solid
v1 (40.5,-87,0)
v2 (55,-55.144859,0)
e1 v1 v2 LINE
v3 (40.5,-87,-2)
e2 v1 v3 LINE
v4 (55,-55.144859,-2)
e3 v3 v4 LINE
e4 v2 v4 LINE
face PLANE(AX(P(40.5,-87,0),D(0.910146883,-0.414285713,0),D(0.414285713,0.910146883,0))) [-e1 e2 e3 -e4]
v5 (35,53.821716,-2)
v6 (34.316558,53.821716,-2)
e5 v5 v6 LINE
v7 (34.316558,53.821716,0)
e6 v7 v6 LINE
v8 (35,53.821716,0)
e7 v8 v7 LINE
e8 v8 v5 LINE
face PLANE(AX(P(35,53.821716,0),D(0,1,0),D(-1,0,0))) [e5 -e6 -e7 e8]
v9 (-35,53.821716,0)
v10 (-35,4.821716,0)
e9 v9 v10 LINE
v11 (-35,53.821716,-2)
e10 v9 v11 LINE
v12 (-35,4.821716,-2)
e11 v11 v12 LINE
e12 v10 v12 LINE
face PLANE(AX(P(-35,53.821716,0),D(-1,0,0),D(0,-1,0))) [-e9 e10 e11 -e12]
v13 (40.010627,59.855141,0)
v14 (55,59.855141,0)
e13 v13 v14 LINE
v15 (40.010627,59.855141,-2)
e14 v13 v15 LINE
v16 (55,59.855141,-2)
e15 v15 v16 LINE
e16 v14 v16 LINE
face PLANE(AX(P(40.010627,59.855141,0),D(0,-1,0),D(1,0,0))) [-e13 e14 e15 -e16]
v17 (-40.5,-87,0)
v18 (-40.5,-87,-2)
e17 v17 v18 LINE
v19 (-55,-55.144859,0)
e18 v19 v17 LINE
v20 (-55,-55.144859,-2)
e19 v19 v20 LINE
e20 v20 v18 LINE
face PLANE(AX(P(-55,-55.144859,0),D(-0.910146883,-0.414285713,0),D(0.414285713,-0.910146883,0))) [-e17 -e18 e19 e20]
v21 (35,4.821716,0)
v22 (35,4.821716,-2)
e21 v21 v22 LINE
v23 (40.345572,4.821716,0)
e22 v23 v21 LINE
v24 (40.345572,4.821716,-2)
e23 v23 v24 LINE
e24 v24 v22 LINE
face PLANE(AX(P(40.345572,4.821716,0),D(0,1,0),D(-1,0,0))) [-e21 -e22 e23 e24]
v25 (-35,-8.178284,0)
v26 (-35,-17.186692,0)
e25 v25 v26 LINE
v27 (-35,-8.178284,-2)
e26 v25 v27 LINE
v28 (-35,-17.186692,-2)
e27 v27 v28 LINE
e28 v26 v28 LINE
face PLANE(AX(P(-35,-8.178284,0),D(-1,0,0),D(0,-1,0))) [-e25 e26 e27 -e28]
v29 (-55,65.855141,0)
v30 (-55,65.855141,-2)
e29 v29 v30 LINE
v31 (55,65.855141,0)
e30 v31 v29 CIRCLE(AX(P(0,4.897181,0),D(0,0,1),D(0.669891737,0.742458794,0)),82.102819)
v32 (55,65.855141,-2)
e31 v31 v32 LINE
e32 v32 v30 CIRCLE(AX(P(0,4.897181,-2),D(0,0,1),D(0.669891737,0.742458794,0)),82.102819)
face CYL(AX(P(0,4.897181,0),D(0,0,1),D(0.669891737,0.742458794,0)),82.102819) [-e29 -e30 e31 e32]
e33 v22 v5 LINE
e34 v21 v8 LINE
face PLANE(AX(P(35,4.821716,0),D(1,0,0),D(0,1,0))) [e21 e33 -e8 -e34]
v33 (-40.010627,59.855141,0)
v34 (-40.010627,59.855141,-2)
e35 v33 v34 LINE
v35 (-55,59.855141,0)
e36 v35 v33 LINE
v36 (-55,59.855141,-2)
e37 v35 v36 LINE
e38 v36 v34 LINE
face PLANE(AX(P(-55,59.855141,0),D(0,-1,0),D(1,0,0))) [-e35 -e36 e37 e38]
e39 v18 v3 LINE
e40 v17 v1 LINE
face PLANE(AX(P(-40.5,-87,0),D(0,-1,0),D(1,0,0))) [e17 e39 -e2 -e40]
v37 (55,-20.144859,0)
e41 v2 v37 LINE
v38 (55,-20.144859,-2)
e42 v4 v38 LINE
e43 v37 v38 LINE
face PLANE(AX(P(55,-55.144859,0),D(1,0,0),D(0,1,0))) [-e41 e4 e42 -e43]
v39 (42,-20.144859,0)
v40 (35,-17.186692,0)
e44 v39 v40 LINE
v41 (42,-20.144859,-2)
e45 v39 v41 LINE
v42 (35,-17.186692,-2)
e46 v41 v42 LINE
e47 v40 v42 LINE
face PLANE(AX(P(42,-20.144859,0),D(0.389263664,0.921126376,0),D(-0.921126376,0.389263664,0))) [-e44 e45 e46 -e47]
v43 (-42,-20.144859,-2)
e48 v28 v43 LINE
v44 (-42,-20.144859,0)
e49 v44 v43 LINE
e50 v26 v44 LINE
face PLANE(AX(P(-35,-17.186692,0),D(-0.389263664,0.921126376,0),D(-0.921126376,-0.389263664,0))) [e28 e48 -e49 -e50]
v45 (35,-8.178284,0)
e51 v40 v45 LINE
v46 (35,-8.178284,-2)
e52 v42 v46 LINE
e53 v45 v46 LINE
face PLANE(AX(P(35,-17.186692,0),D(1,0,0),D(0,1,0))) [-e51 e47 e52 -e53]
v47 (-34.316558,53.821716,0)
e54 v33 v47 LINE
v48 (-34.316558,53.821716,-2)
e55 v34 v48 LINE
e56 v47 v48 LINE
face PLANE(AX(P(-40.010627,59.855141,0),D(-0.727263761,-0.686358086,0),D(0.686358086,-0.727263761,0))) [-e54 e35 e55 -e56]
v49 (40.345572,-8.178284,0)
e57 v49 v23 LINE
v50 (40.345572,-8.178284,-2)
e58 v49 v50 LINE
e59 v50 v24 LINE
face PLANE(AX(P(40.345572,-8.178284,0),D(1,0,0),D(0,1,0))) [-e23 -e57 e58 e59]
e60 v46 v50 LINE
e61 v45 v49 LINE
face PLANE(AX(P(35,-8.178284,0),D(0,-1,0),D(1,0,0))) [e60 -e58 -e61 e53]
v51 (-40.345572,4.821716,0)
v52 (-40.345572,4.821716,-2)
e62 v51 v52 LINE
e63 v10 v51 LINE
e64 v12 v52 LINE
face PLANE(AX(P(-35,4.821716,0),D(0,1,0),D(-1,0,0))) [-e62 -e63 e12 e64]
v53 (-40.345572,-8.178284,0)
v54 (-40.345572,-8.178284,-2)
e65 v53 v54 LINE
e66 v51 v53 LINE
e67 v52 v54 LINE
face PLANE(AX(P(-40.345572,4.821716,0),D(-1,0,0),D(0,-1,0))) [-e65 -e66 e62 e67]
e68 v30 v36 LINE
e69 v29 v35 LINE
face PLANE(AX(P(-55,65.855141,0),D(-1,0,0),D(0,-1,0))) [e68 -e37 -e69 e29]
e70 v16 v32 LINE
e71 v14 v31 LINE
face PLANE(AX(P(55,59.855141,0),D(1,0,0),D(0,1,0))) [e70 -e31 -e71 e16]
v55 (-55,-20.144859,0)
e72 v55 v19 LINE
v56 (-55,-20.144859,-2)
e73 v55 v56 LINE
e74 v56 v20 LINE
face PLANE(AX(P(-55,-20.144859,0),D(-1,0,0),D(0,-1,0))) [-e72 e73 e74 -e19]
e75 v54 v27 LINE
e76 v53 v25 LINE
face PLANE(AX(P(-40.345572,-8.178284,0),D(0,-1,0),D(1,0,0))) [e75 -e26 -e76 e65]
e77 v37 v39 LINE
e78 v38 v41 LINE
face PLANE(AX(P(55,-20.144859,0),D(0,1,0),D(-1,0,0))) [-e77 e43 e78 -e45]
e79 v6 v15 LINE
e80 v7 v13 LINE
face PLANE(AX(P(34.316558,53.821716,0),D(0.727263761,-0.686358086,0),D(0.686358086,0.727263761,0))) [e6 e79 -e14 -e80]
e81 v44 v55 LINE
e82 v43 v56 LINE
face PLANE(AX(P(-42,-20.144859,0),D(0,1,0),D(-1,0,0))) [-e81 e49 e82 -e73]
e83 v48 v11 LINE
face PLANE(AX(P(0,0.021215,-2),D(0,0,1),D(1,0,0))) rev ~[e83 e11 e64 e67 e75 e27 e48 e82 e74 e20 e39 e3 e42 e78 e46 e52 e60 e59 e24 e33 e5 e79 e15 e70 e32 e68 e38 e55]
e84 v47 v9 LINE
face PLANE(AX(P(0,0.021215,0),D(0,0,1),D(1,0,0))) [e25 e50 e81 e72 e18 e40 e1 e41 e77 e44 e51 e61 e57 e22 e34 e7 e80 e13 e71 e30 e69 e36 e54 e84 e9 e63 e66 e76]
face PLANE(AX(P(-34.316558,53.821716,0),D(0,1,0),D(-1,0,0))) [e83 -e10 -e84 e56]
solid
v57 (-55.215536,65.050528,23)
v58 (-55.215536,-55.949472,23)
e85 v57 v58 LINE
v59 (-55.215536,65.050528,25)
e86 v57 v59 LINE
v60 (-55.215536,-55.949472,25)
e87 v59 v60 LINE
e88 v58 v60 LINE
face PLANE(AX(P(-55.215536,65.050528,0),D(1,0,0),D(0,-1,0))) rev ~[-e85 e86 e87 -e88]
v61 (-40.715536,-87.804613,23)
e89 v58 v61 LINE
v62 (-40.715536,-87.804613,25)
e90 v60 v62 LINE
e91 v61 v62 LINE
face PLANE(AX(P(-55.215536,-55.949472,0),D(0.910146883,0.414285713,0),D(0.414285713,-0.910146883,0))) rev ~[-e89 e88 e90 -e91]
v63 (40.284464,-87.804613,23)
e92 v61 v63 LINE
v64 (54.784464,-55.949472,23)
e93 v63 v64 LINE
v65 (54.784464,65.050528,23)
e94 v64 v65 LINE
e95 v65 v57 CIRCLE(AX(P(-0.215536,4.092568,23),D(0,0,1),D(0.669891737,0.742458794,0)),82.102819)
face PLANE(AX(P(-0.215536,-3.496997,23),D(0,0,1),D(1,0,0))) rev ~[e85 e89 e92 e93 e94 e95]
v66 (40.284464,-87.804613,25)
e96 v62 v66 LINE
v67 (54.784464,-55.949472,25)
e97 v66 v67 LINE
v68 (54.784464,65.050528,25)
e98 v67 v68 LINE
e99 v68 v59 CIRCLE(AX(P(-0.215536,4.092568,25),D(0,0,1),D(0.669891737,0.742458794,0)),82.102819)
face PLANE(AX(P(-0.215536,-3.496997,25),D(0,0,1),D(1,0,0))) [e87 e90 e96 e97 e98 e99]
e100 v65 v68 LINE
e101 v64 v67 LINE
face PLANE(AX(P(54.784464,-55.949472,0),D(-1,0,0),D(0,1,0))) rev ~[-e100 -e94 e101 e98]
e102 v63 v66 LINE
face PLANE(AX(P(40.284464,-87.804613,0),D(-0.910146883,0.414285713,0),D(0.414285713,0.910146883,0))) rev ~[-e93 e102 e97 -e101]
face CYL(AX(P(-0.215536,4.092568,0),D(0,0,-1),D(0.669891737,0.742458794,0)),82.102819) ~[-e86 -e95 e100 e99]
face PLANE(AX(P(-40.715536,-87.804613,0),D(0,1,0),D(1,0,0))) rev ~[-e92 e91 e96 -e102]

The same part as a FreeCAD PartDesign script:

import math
import FreeCAD as App
import Part
import Sketcher
from FreeCAD import Vector

doc = App.newDocument("Part")
body = doc.addObject("PartDesign::Body", "Body")

# Sketch on XY plane
sketch1 = body.newObject("Sketcher::SketchObject", "Sketch")
sketch1.AttachmentSupport = (doc.getObject("XY_Plane"), [""])
sketch1.MapMode = "FlatFace"
sketch1.addGeometry(Part.LineSegment(Vector(-41, -88, 0), Vector(40, -88, 0)), False)
sketch1.addGeometry(Part.LineSegment(Vector(40, -88, 0), Vector(55, -56, 0)), False)
sketch1.addGeometry(Part.LineSegment(Vector(55, -56, 0), Vector(55, 65, 0)), False)
sketch1.addGeometry(Part.ArcOfCircle(Part.Circle(Vector(0, 4, 0), Vector(0, 0, 1), 82), math.radians(48), math.radians(132)), False)
sketch1.addGeometry(Part.LineSegment(Vector(-55, 65, 0), Vector(-55, -56, 0)), False)
sketch1.addGeometry(Part.LineSegment(Vector(-55, -56, 0), Vector(-41, -88, 0)), False)
sketch1.addConstraint(Sketcher.Constraint("Coincident", 0, 2, 1, 1))
sketch1.addConstraint(Sketcher.Constraint("Coincident", 1, 2, 2, 1))
sketch1.addConstraint(Sketcher.Constraint("Coincident", 2, 2, 3, 1))
sketch1.addConstraint(Sketcher.Constraint("Coincident", 3, 2, 4, 1))
sketch1.addConstraint(Sketcher.Constraint("Coincident", 4, 2, 5, 1))
sketch1.addConstraint(Sketcher.Constraint("Coincident", 5, 2, 0, 1))
sketch1.addConstraint(Sketcher.Constraint("Horizontal", 0))
sketch1.addConstraint(Sketcher.Constraint("Vertical", 2))
sketch1.addConstraint(Sketcher.Constraint("Vertical", 4))
sketch1.addConstraint(Sketcher.Constraint("Horizontal", 2, 2, 3, 2))
sketch1.addConstraint(Sketcher.Constraint("Horizontal", 1, 2, 4, 2))
sketch1.addConstraint(Sketcher.Constraint("Equal", 1, 5))
sketch1.addConstraint(Sketcher.Constraint("DistanceX", 0, 1, 0, 2, 81.0))
sketch1.addConstraint(Sketcher.Constraint("DistanceY", 2, 1, 2, 2, 121.0))
sketch1.addConstraint(Sketcher.Constraint("Distance", 1, 35.0))
sketch1.addConstraint(Sketcher.Constraint("DistanceX", 3, 3, 1, 2, 55.0))
sketch1.addConstraint(Sketcher.Constraint("Radius", 3, 82.102819))
sketch1.addConstraint(Sketcher.Constraint("DistanceY", -1, 1, 3, 3, 4.092568))
sketch1.addConstraint(Sketcher.Constraint("DistanceX", 3, 3, -1, 1, 0.215536))
pad1 = body.newObject("PartDesign::Pad", "Pad")
pad1.Profile = sketch1
pad1.Length = 25

# Sketch on XY plane
sketch2 = body.newObject("Sketcher::SketchObject", "Sketch001")
sketch2.AttachmentSupport = (doc.getObject("XY_Plane"), [""])
sketch2.MapMode = "FlatFace"
sketch2.addGeometry(Part.LineSegment(Vector(-41, -88, 0), Vector(40, -88, 0)), False)
sketch2.addGeometry(Part.LineSegment(Vector(40, -88, 0), Vector(55, -56, 0)), False)
sketch2.addGeometry(Part.LineSegment(Vector(55, -56, 0), Vector(55, 65, 0)), False)
sketch2.addGeometry(Part.ArcOfCircle(Part.Circle(Vector(0, 4, 0), Vector(0, 0, 1), 82), math.radians(48), math.radians(132)), False)
sketch2.addGeometry(Part.LineSegment(Vector(-55, 65, 0), Vector(-55, -56, 0)), False)
sketch2.addGeometry(Part.LineSegment(Vector(-55, -56, 0), Vector(-41, -88, 0)), False)
sketch2.addConstraint(Sketcher.Constraint("Coincident", 0, 2, 1, 1))
sketch2.addConstraint(Sketcher.Constraint("Coincident", 1, 2, 2, 1))
sketch2.addConstraint(Sketcher.Constraint("Coincident", 2, 2, 3, 1))
sketch2.addConstraint(Sketcher.Constraint("Coincident", 3, 2, 4, 1))
sketch2.addConstraint(Sketcher.Constraint("Coincident", 4, 2, 5, 1))
sketch2.addConstraint(Sketcher.Constraint("Coincident", 5, 2, 0, 1))
sketch2.addConstraint(Sketcher.Constraint("Horizontal", 0))
sketch2.addConstraint(Sketcher.Constraint("Vertical", 2))
sketch2.addConstraint(Sketcher.Constraint("Vertical", 4))
sketch2.addConstraint(Sketcher.Constraint("Horizontal", 2, 2, 3, 2))
sketch2.addConstraint(Sketcher.Constraint("Horizontal", 1, 2, 4, 2))
sketch2.addConstraint(Sketcher.Constraint("Equal", 1, 5))
sketch2.addConstraint(Sketcher.Constraint("DistanceX", 0, 1, 0, 2, 81.0))
sketch2.addConstraint(Sketcher.Constraint("DistanceY", 2, 1, 2, 2, 121.0))
sketch2.addConstraint(Sketcher.Constraint("Distance", 1, 35.0))
sketch2.addConstraint(Sketcher.Constraint("DistanceX", 3, 3, 1, 2, 55.0))
sketch2.addConstraint(Sketcher.Constraint("Radius", 3, 82.102819))
sketch2.addConstraint(Sketcher.Constraint("DistanceY", -1, 1, 3, 3, 4.092568))
sketch2.addConstraint(Sketcher.Constraint("DistanceX", 3, 3, -1, 1, 0.215536))
pocket1 = body.newObject("PartDesign::Pocket", "Pocket")
pocket1.Profile = sketch2
pocket1.Length = 23
pocket1.Reversed = True
body2 = doc.addObject("PartDesign::Body", "Body001")

# Sketch on XY plane
sketch3 = body2.newObject("Sketcher::SketchObject", "Sketch002")
sketch3.AttachmentSupport = (doc.getObject("XY_Plane001"), [""])
sketch3.MapMode = "FlatFace"
sketch3.addGeometry(Part.LineSegment(Vector(-40.5, -87, 0), Vector(40.5, -87, 0)), False)
sketch3.addGeometry(Part.LineSegment(Vector(40.5, -87, 0), Vector(55, -55.1, 0)), False)
sketch3.addGeometry(Part.LineSegment(Vector(55, -55.1, 0), Vector(55, -20.1, 0)), False)
sketch3.addGeometry(Part.LineSegment(Vector(55, -20.1, 0), Vector(42, -20.1, 0)), False)
sketch3.addGeometry(Part.LineSegment(Vector(42, -20.1, 0), Vector(35, -17.2, 0)), False)
sketch3.addGeometry(Part.LineSegment(Vector(35, -17.2, 0), Vector(35, -8.2, 0)), False)
sketch3.addGeometry(Part.LineSegment(Vector(35, -8.2, 0), Vector(40.3, -8.2, 0)), False)
sketch3.addGeometry(Part.LineSegment(Vector(40.3, -8.2, 0), Vector(40.3, 4.8, 0)), False)
sketch3.addGeometry(Part.LineSegment(Vector(40.3, 4.8, 0), Vector(35, 4.8, 0)), False)
sketch3.addGeometry(Part.LineSegment(Vector(35, 4.8, 0), Vector(35, 53.8, 0)), False)
sketch3.addGeometry(Part.LineSegment(Vector(35, 53.8, 0), Vector(34.3, 53.8, 0)), False)
sketch3.addGeometry(Part.LineSegment(Vector(34.3, 53.8, 0), Vector(40, 59.9, 0)), False)
sketch3.addGeometry(Part.LineSegment(Vector(40, 59.9, 0), Vector(55, 59.9, 0)), False)
sketch3.addGeometry(Part.LineSegment(Vector(55, 59.9, 0), Vector(55, 65.9, 0)), False)
sketch3.addGeometry(Part.ArcOfCircle(Part.Circle(Vector(0, 4.9, 0), Vector(0, 0, 1), 82.1), math.radians(48), math.radians(132)), False)
sketch3.addGeometry(Part.LineSegment(Vector(-55, 65.9, 0), Vector(-55, 59.9, 0)), False)
sketch3.addGeometry(Part.LineSegment(Vector(-55, 59.9, 0), Vector(-40, 59.9, 0)), False)
sketch3.addGeometry(Part.LineSegment(Vector(-40, 59.9, 0), Vector(-34.3, 53.8, 0)), False)
sketch3.addGeometry(Part.LineSegment(Vector(-34.3, 53.8, 0), Vector(-35, 53.8, 0)), False)
sketch3.addGeometry(Part.LineSegment(Vector(-35, 53.8, 0), Vector(-35, 4.8, 0)), False)
sketch3.addGeometry(Part.LineSegment(Vector(-35, 4.8, 0), Vector(-40.3, 4.8, 0)), False)
sketch3.addGeometry(Part.LineSegment(Vector(-40.3, 4.8, 0), Vector(-40.3, -8.2, 0)), False)
sketch3.addGeometry(Part.LineSegment(Vector(-40.3, -8.2, 0), Vector(-35, -8.2, 0)), False)
sketch3.addGeometry(Part.LineSegment(Vector(-35, -8.2, 0), Vector(-35, -17.2, 0)), False)
sketch3.addGeometry(Part.LineSegment(Vector(-35, -17.2, 0), Vector(-42, -20.1, 0)), False)
sketch3.addGeometry(Part.LineSegment(Vector(-42, -20.1, 0), Vector(-55, -20.1, 0)), False)
sketch3.addGeometry(Part.LineSegment(Vector(-55, -20.1, 0), Vector(-55, -55.1, 0)), False)
sketch3.addGeometry(Part.LineSegment(Vector(-55, -55.1, 0), Vector(-40.5, -87, 0)), False)
sketch3.addConstraint(Sketcher.Constraint("Coincident", 0, 2, 1, 1))
sketch3.addConstraint(Sketcher.Constraint("Coincident", 1, 2, 2, 1))
sketch3.addConstraint(Sketcher.Constraint("Coincident", 2, 2, 3, 1))
sketch3.addConstraint(Sketcher.Constraint("Coincident", 3, 2, 4, 1))
sketch3.addConstraint(Sketcher.Constraint("Coincident", 4, 2, 5, 1))
sketch3.addConstraint(Sketcher.Constraint("Coincident", 5, 2, 6, 1))
sketch3.addConstraint(Sketcher.Constraint("Coincident", 6, 2, 7, 1))
sketch3.addConstraint(Sketcher.Constraint("Coincident", 7, 2, 8, 1))
sketch3.addConstraint(Sketcher.Constraint("Coincident", 8, 2, 9, 1))
sketch3.addConstraint(Sketcher.Constraint("Coincident", 9, 2, 10, 1))
sketch3.addConstraint(Sketcher.Constraint("Coincident", 10, 2, 11, 1))
sketch3.addConstraint(Sketcher.Constraint("Coincident", 11, 2, 12, 1))
sketch3.addConstraint(Sketcher.Constraint("Coincident", 12, 2, 13, 1))
sketch3.addConstraint(Sketcher.Constraint("Coincident", 13, 2, 14, 1))
sketch3.addConstraint(Sketcher.Constraint("Coincident", 14, 2, 15, 1))
sketch3.addConstraint(Sketcher.Constraint("Coincident", 15, 2, 16, 1))
sketch3.addConstraint(Sketcher.Constraint("Coincident", 16, 2, 17, 1))
sketch3.addConstraint(Sketcher.Constraint("Coincident", 17, 2, 18, 1))
sketch3.addConstraint(Sketcher.Constraint("Coincident", 18, 2, 19, 1))
sketch3.addConstraint(Sketcher.Constraint("Coincident", 19, 2, 20, 1))
sketch3.addConstraint(Sketcher.Constraint("Coincident", 20, 2, 21, 1))
sketch3.addConstraint(Sketcher.Constraint("Coincident", 21, 2, 22, 1))
sketch3.addConstraint(Sketcher.Constraint("Coincident", 22, 2, 23, 1))
sketch3.addConstraint(Sketcher.Constraint("Coincident", 23, 2, 24, 1))
sketch3.addConstraint(Sketcher.Constraint("Coincident", 24, 2, 25, 1))
sketch3.addConstraint(Sketcher.Constraint("Coincident", 25, 2, 26, 1))
sketch3.addConstraint(Sketcher.Constraint("Coincident", 26, 2, 27, 1))
sketch3.addConstraint(Sketcher.Constraint("Coincident", 27, 2, 0, 1))
sketch3.addConstraint(Sketcher.Constraint("Horizontal", 0))
sketch3.addConstraint(Sketcher.Constraint("Vertical", 2))
sketch3.addConstraint(Sketcher.Constraint("Horizontal", 3))
sketch3.addConstraint(Sketcher.Constraint("Vertical", 5))
sketch3.addConstraint(Sketcher.Constraint("Horizontal", 6))
sketch3.addConstraint(Sketcher.Constraint("Vertical", 7))
sketch3.addConstraint(Sketcher.Constraint("Horizontal", 8))
sketch3.addConstraint(Sketcher.Constraint("Vertical", 9))
sketch3.addConstraint(Sketcher.Constraint("Horizontal", 10))
sketch3.addConstraint(Sketcher.Constraint("Horizontal", 12))
sketch3.addConstraint(Sketcher.Constraint("Vertical", 13))
sketch3.addConstraint(Sketcher.Constraint("Vertical", 15))
sketch3.addConstraint(Sketcher.Constraint("Horizontal", 16))
sketch3.addConstraint(Sketcher.Constraint("Horizontal", 18))
sketch3.addConstraint(Sketcher.Constraint("Vertical", 19))
sketch3.addConstraint(Sketcher.Constraint("Horizontal", 20))
sketch3.addConstraint(Sketcher.Constraint("Vertical", 21))
sketch3.addConstraint(Sketcher.Constraint("Horizontal", 22))
sketch3.addConstraint(Sketcher.Constraint("Vertical", 23))
sketch3.addConstraint(Sketcher.Constraint("Horizontal", 25))
sketch3.addConstraint(Sketcher.Constraint("Vertical", 26))
sketch3.addConstraint(Sketcher.Constraint("Symmetric", 13, 2, 14, 2, -2))
sketch3.addConstraint(Sketcher.Constraint("Symmetric", 11, 2, 16, 2, -2))
sketch3.addConstraint(Sketcher.Constraint("Symmetric", 10, 2, 17, 2, -2))
sketch3.addConstraint(Sketcher.Constraint("Symmetric", 8, 2, 19, 2, -2))
sketch3.addConstraint(Sketcher.Constraint("Symmetric", 6, 2, 21, 2, -2))
sketch3.addConstraint(Sketcher.Constraint("Symmetric", 4, 2, 23, 2, -2))
sketch3.addConstraint(Sketcher.Constraint("Symmetric", 3, 2, 24, 2, -2))
sketch3.addConstraint(Sketcher.Constraint("Symmetric", 1, 2, 26, 2, -2))
sketch3.addConstraint(Sketcher.Constraint("Vertical", 5, 2, 8, 2))
sketch3.addConstraint(Sketcher.Constraint("Vertical", 2, 2, 12, 2))
sketch3.addConstraint(Sketcher.Constraint("Equal", 25, 7))
sketch3.addConstraint(Sketcher.Constraint("Equal", 1, 27))
sketch3.addConstraint(Sketcher.Constraint("DistanceX", 0, 1, 0, 2, 81.0))
sketch3.addConstraint(Sketcher.Constraint("DistanceX", 3, 2, 3, 1, 13.0))
sketch3.addConstraint(Sketcher.Constraint("DistanceY", 2, 1, 2, 2, 35.0))
sketch3.addConstraint(Sketcher.Constraint("DistanceY", 9, 1, 9, 2, 49.0))
sketch3.addConstraint(Sketcher.Constraint("DistanceY", 13, 1, 13, 2, 6.0))
sketch3.addConstraint(Sketcher.Constraint("Distance", 1, 35.0))
sketch3.addConstraint(Sketcher.Constraint("DistanceY", 0, 2, -1, 1, 87.0))
sketch3.addConstraint(Sketcher.Constraint("DistanceX", -1, 1, 1, 2, 55.0))
sketch3.addConstraint(Sketcher.Constraint("DistanceX", -1, 1, 4, 2, 35.0))
sketch3.addConstraint(Sketcher.Constraint("Radius", 14, 82.102819))
sketch3.addConstraint(Sketcher.Constraint("DistanceX", 6, 1, 6, 2, 5.345572))
sketch3.addConstraint(Sketcher.Constraint("DistanceX", 10, 2, 10, 1, 0.683442))
sketch3.addConstraint(Sketcher.Constraint("DistanceY", 5, 1, 5, 2, 9.008408))
sketch3.addConstraint(Sketcher.Constraint("Distance", 4, 7.599392))
sketch3.addConstraint(Sketcher.Constraint("Distance", 11, 8.296062))
sketch3.addConstraint(Sketcher.Constraint("DistanceX", 12, 1, 12, 2, 14.989373))
pad2 = body2.newObject("PartDesign::Pad", "Pad001")
pad2.Profile = sketch3
pad2.Length = 2
pad2.Reversed = True

doc.recompute()
